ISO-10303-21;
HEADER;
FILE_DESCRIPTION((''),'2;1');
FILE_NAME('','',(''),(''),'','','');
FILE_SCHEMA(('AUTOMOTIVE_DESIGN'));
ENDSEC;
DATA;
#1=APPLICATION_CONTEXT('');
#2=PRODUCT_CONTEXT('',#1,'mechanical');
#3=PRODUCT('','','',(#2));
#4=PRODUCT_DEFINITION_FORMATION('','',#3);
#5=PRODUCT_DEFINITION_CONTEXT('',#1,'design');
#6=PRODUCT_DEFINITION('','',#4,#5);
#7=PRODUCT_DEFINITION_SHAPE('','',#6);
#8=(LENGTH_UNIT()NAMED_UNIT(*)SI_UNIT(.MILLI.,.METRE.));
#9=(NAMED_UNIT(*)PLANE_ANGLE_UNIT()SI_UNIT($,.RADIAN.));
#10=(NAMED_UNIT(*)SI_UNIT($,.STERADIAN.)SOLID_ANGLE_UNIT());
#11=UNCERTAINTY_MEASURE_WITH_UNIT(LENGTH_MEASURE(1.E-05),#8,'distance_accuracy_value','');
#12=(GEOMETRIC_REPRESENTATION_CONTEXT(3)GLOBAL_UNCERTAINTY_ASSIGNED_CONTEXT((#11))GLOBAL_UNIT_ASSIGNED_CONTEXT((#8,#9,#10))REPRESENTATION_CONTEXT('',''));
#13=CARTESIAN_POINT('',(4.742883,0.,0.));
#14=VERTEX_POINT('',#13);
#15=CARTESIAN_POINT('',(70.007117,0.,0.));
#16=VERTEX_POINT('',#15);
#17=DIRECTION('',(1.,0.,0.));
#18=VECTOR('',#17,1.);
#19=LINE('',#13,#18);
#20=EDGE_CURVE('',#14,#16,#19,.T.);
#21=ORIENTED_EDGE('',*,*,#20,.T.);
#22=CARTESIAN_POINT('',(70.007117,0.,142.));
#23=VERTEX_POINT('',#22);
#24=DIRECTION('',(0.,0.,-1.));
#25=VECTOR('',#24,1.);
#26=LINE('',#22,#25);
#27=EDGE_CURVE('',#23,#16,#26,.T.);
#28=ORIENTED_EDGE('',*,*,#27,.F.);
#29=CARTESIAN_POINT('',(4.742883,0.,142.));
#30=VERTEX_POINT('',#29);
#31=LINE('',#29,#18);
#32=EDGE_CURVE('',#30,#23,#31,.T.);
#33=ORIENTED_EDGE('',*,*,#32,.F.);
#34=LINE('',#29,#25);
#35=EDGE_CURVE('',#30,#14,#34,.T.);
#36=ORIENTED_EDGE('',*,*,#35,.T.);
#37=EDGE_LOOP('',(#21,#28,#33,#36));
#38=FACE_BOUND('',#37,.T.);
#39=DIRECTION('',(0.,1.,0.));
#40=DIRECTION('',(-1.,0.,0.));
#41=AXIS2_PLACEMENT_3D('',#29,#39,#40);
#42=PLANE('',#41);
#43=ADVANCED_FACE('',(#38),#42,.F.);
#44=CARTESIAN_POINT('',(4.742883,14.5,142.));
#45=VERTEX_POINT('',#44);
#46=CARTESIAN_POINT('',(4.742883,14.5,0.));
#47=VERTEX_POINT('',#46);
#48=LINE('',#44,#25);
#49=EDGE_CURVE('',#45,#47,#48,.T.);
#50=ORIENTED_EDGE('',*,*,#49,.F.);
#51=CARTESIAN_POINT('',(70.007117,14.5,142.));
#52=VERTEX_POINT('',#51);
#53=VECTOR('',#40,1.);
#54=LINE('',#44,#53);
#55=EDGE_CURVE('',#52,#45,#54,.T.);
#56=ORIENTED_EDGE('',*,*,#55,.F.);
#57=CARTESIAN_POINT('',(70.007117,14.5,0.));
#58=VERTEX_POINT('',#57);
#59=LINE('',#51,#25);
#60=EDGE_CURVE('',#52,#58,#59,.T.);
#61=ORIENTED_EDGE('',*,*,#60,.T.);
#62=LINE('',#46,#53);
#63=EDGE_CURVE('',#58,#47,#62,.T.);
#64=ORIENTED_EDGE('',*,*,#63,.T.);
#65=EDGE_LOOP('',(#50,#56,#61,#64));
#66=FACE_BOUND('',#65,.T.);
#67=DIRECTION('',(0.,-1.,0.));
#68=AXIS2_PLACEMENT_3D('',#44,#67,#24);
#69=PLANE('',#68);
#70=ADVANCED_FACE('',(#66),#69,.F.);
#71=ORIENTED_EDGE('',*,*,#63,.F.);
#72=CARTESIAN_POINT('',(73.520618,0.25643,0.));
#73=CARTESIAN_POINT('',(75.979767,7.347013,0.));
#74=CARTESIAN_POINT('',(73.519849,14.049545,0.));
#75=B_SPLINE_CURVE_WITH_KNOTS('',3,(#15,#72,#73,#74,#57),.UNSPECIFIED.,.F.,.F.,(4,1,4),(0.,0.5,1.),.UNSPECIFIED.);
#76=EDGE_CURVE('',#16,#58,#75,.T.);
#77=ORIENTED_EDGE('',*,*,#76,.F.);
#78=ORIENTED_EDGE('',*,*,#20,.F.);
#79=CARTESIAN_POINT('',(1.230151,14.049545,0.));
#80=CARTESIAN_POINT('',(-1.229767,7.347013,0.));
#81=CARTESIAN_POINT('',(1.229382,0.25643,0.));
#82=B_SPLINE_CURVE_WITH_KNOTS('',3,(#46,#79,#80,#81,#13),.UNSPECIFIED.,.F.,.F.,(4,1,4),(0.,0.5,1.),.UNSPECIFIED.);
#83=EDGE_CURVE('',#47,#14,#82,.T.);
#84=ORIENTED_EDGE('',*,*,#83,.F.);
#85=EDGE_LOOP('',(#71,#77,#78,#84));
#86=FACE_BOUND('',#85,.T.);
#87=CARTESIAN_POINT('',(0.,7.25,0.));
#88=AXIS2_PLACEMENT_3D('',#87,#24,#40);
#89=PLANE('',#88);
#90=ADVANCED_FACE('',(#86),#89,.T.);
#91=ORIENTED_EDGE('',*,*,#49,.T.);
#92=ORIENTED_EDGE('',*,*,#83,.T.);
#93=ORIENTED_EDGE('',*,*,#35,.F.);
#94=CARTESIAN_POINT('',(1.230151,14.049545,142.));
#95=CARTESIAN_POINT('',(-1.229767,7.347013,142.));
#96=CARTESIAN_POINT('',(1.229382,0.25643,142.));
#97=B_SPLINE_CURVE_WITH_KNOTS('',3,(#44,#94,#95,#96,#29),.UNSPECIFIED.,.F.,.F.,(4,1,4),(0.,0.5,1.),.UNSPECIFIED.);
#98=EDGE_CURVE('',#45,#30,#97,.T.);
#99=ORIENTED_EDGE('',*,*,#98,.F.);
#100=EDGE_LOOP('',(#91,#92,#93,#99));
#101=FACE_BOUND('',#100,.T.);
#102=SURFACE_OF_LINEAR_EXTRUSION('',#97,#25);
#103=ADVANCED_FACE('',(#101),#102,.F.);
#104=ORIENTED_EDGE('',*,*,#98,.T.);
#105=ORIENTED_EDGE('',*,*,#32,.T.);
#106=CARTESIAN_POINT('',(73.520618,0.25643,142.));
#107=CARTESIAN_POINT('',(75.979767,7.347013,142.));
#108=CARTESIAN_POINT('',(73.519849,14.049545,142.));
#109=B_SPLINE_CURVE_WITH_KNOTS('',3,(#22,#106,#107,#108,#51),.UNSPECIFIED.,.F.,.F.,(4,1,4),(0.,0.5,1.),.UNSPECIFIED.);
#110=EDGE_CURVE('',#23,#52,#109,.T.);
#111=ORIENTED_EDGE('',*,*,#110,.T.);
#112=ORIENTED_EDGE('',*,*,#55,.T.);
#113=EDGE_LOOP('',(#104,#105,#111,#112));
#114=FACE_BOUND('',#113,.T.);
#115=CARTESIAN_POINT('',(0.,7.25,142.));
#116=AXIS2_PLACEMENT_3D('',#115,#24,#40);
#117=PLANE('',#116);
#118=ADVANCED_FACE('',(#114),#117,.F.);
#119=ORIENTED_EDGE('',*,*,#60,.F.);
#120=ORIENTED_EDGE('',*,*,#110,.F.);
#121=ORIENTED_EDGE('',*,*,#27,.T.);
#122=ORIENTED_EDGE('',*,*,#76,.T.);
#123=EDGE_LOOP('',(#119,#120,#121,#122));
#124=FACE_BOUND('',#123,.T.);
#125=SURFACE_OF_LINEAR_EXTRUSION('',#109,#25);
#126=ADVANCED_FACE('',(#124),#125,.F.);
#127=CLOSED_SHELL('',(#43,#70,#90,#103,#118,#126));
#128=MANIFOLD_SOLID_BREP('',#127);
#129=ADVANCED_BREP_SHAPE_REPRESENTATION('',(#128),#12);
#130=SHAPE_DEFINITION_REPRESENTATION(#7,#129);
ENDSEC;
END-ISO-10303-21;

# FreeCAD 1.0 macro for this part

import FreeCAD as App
import Part
import Sketcher

V = App.Vector

doc = App.newDocument("Part")
params = doc.addObject("Spreadsheet::Sheet", "Params")
for row, (alias, value) in enumerate([
    ("pad1_length", "142 mm"),
], start=1):
    params.set(f"A{row}", alias)
    params.set(f"B{row}", "=" + value)
    params.setAlias(f"B{row}", alias)

body = doc.addObject("PartDesign::Body", "Body")

# Sketch on XY plane
sketch1 = body.newObject("Sketcher::SketchObject", "Sketch")
sketch1.AttachmentSupport = (doc.getObject("XY_Plane"), [""])
sketch1.MapMode = "FlatFace"
sketch1.addGeometry([
    Part.LineSegment(V(4.742883, 0, 0), V(70.007117, 0, 0)),
    Part.BSplineCurve([V(70.007117, 14.5, 0), V(73.519849, 14.049545, 0), V(75.979767, 7.347013, 0), V(73.520618, 0.25643, 0), V(70.007117, 0, 0)], [4, 1, 4], [0, 0.5, 1], False, 3, [1, 1, 1, 1, 1], False),
    Part.LineSegment(V(70.007117, 14.5, 0), V(4.742883, 14.5, 0)),
    Part.BSplineCurve([V(4.742883, 14.5, 0), V(1.230151, 14.049545, 0), V(-1.229767, 7.347013, 0), V(1.229382, 0.25643, 0), V(4.742883, 0, 0)], [4, 1, 4], [0, 0.5, 1], False, 3, [1, 1, 1, 1, 1], False),
], False)
sketch1.addConstraint([
    Sketcher.Constraint("Block", 1),
    Sketcher.Constraint("Block", 3),
    Sketcher.Constraint("Coincident", 0, 2, 1, 2),
    Sketcher.Constraint("Coincident", 1, 1, 2, 1),
    Sketcher.Constraint("Coincident", 2, 2, 3, 1),
    Sketcher.Constraint("Coincident", 3, 2, 0, 1),
])
pad1 = body.newObject("PartDesign::Pad", "Pad")
pad1.Profile = sketch1
pad1.setExpression("Length", "Params.pad1_length")

doc.recompute()
